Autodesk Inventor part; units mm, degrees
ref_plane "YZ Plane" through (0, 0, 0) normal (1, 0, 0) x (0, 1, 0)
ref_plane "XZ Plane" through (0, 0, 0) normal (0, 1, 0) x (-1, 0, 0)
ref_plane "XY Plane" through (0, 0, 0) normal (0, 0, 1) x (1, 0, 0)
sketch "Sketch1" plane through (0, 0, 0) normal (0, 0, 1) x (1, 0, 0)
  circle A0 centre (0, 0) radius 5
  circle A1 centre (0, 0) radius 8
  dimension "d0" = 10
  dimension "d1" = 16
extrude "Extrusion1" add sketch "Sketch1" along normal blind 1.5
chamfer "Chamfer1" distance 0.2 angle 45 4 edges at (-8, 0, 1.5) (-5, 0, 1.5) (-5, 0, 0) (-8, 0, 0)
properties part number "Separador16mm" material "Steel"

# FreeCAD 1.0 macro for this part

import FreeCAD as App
import Part
import Sketcher


def edges_at(feature, points):
    """Names of the edges that pass closest to the given points."""
    edges = feature.Shape.Edges
    near = lambda p: min(range(len(edges)), key=lambda i: edges[i].distToShape(Part.Vertex(*p))[0])
    return sorted({f"Edge{near(p) + 1}" for p in points})

doc = App.newDocument("Part")
body = doc.addObject("PartDesign::Body", "Body")

# Sketch on XY plane
sketch1 = body.newObject("Sketcher::SketchObject", "Sketch")
sketch1.AttachmentSupport = (doc.getObject("XY_Plane"), [""])
sketch1.MapMode = "FlatFace"
sketch1.addGeometry(Part.Circle(App.Vector(0, 0, 0), App.Vector(0, 0, 1), 8), False)
sketch1.addGeometry(Part.Circle(App.Vector(0, 0, 0), App.Vector(0, 0, 1), 5), False)
sketch1.addConstraint(Sketcher.Constraint("Coincident", 0, 3, -1, 1))
sketch1.addConstraint(Sketcher.Constraint("Coincident", 1, 3, -1, 1))
sketch1.addConstraint(Sketcher.Constraint("Diameter", 0, 16.0))
sketch1.addConstraint(Sketcher.Constraint("Diameter", 1, 10.0))
pad1 = body.newObject("PartDesign::Pad", "Pad")
pad1.Profile = sketch1
pad1.Length = 1.5
doc.recompute()

chamfer = body.newObject("PartDesign::Chamfer", "Chamfer")
chamfer.Base = (pad1, edges_at(pad1, [
    (-8, 0, 1.5),
    (-5, 0, 1.5),
    (-5, 0, 0),
    (-8, 0, 0),
]))
chamfer.Size = 0.2

doc.recompute()
